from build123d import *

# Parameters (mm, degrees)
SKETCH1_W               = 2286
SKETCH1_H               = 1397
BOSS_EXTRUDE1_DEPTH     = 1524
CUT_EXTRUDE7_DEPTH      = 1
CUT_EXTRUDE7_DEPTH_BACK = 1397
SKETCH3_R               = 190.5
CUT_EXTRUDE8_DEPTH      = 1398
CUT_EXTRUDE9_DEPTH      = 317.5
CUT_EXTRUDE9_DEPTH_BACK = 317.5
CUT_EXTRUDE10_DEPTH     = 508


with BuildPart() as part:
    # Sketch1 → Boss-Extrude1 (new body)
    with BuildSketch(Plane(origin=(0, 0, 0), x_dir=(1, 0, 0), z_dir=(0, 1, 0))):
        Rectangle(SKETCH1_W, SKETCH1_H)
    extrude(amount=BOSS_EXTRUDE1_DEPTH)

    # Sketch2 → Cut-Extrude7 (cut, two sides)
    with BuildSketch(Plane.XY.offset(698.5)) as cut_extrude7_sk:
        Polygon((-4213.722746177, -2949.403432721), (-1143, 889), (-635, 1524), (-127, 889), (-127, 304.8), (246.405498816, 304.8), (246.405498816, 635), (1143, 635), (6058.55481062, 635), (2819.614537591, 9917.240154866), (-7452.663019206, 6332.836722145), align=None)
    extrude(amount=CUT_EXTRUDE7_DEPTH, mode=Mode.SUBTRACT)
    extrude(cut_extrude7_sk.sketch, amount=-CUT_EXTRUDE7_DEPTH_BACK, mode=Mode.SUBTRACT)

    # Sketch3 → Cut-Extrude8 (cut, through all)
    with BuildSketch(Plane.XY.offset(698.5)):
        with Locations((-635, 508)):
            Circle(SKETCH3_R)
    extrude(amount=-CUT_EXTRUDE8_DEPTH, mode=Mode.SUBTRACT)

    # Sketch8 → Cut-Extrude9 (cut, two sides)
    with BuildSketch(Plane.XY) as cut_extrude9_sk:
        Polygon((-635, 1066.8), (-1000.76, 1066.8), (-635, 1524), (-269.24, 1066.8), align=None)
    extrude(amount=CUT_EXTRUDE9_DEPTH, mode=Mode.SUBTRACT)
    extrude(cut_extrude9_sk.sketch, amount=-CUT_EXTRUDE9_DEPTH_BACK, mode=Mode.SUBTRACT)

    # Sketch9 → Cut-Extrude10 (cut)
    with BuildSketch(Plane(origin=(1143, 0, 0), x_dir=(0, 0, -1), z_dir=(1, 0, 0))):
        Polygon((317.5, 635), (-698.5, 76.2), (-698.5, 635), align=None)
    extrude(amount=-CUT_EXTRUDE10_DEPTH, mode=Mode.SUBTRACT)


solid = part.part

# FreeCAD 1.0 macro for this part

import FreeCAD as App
import Part
import Sketcher

V = App.Vector
Q = App.Units.Quantity

doc = App.newDocument("Part")
body = doc.addObject("PartDesign::Body", "Body")

sketch1 = doc.addObject("Sketcher::SketchObject", "Sketch")
body.addObject(sketch1)
sketch1.AttachmentSupport = (doc.XZ_Plane, [""])
sketch1.MapMode = "FlatFace"
sketch1.addGeometry(Part.LineSegment(V(-1143, -698, 0), V(-1143, 698, 0)), False)
sketch1.addGeometry(Part.LineSegment(V(-1143, 698, 0), V(1143, 698, 0)), False)
sketch1.addGeometry(Part.LineSegment(V(1143, 698, 0), V(1143, -698, 0)), False)
sketch1.addGeometry(Part.LineSegment(V(1143, -698, 0), V(-1143, -698, 0)), False)
sketch1.addConstraint(Sketcher.Constraint("Coincident", 0, 2, 1, 1))
sketch1.addConstraint(Sketcher.Constraint("Coincident", 1, 2, 2, 1))
sketch1.addConstraint(Sketcher.Constraint("Coincident", 2, 2, 3, 1))
sketch1.addConstraint(Sketcher.Constraint("Coincident", 3, 2, 0, 1))
sketch1.addConstraint(Sketcher.Constraint("Vertical", 0))
sketch1.addConstraint(Sketcher.Constraint("Horizontal", 1))
sketch1.addConstraint(Sketcher.Constraint("Vertical", 2))
sketch1.addConstraint(Sketcher.Constraint("Horizontal", 3))
sketch1.addConstraint(Sketcher.Constraint("Symmetric", 0, 2, 2, 2, -1, 1))
sketch1.addConstraint(Sketcher.Constraint("DistanceX", 1, 1, 1, 2, Q("90 in")))
sketch1.addConstraint(Sketcher.Constraint("DistanceY", 0, 1, 0, 2, Q("55 in")))
pad1 = doc.addObject("PartDesign::Pad", "Pad")
body.addObject(pad1)
pad1.Profile = sketch1
pad1.Length = Q("60 in")
pad1.Reversed = True

sketch2 = doc.addObject("Sketcher::SketchObject", "Sketch001")
body.addObject(sketch2)
sketch2.AttachmentSupport = (doc.XY_Plane, [""])
sketch2.MapMode = "FlatFace"
sketch2.AttachmentOffset = App.Placement(V(0, 0, 27.5 * 25.4), App.Rotation())
sketch2.addGeometry(Part.LineSegment(V(-4214, -2949, 0), V(-635, 1524, 0)), False)
sketch2.addGeometry(Part.LineSegment(V(-635, 1524, 0), V(-127, 889, 0)), False)
sketch2.addGeometry(Part.LineSegment(V(-127, 889, 0), V(-127, 305, 0)), False)
sketch2.addGeometry(Part.LineSegment(V(-127, 305, 0), V(246, 305, 0)), False)
sketch2.addGeometry(Part.LineSegment(V(246, 305, 0), V(246, 635, 0)), False)
sketch2.addGeometry(Part.LineSegment(V(246, 635, 0), V(6059, 635, 0)), False)
sketch2.addGeometry(Part.LineSegment(V(6059, 635, 0), V(2820, 9917, 0)), False)
sketch2.addGeometry(Part.LineSegment(V(2820, 9917, 0), V(-7453, 6333, 0)), False)
sketch2.addGeometry(Part.LineSegment(V(-7453, 6333, 0), V(-4214, -2949, 0)), False)
sketch2.addConstraint(Sketcher.Constraint("Coincident", 0, 2, 1, 1))
sketch2.addConstraint(Sketcher.Constraint("Coincident", 1, 2, 2, 1))
sketch2.addConstraint(Sketcher.Constraint("Coincident", 2, 2, 3, 1))
sketch2.addConstraint(Sketcher.Constraint("Coincident", 3, 2, 4, 1))
sketch2.addConstraint(Sketcher.Constraint("Coincident", 4, 2, 5, 1))
sketch2.addConstraint(Sketcher.Constraint("Coincident", 5, 2, 6, 1))
sketch2.addConstraint(Sketcher.Constraint("Coincident", 6, 2, 7, 1))
sketch2.addConstraint(Sketcher.Constraint("Coincident", 7, 2, 8, 1))
sketch2.addConstraint(Sketcher.Constraint("Coincident", 8, 2, 0, 1))
sketch2.addConstraint(Sketcher.Constraint("Vertical", 2))
sketch2.addConstraint(Sketcher.Constraint("Horizontal", 3))
sketch2.addConstraint(Sketcher.Constraint("Vertical", 4))
sketch2.addConstraint(Sketcher.Constraint("Horizontal", 5))
sketch2.addConstraint(Sketcher.Constraint("Perpendicular", 6, 7))
sketch2.addConstraint(Sketcher.Constraint("Perpendicular", 7, 8))
sketch2.addConstraint(Sketcher.Constraint("Equal", 6, 8))
sketch2.addConstraint(Sketcher.Constraint("DistanceY", 2, 2, 2, 1, Q("23 in")))
sketch2.addConstraint(Sketcher.Constraint("DistanceY", 4, 1, 4, 2, Q("13 in")))
sketch2.addConstraint(Sketcher.Constraint("DistanceX", 0, 2, -1, 1, Q("25 in")))
sketch2.addConstraint(Sketcher.Constraint("DistanceY", -1, 1, 0, 2, Q("60 in")))
sketch2.addConstraint(Sketcher.Constraint("DistanceX", 1, 2, -1, 1, Q("5 in")))
sketch2.addConstraint(Sketcher.Constraint("DistanceY", -1, 1, 1, 2, Q("35 in")))
sketch2.addConstraint(Sketcher.Constraint("DistanceX", 3, 1, 3, 2, Q("373.405499 mm")))
sketch2.addConstraint(Sketcher.Constraint("DistanceX", 8, 2, 3, 2, Q("175.5956002 in")))
sketch2.addConstraint(Sketcher.Constraint("DistanceX", 5, 1, 5, 2, Q("5812.149312 mm")))
sketch2.addConstraint(Sketcher.Constraint("Distance", 0, Q("5728.751589 mm")))
sketch2.addConstraint(Sketcher.Constraint("Distance", 6, Q("9831.109621 mm")))
pocket1 = doc.addObject("PartDesign::Pocket", "Pocket")
body.addObject(pocket1)
pocket1.Profile = sketch2
pocket1.Type = "ThroughAll"
pocket1.Midplane = True

sketch3 = doc.addObject("Sketcher::SketchObject", "Sketch002")
body.addObject(sketch3)
sketch3.AttachmentSupport = (doc.XY_Plane, [""])
sketch3.MapMode = "FlatFace"
sketch3.AttachmentOffset = App.Placement(V(0, 0, 27.5 * 25.4), App.Rotation())
sketch3.addGeometry(Part.Circle(V(-635, 508, 0), V(0, 0, 1), 190), False)
sketch3.addConstraint(Sketcher.Constraint("Diameter", 0, Q("15 in")))
sketch3.addConstraint(Sketcher.Constraint("DistanceX", 0, 3, -1, 1, Q("25 in")))
sketch3.addConstraint(Sketcher.Constraint("DistanceY", -1, 1, 0, 3, Q("20 in")))
pocket2 = doc.addObject("PartDesign::Pocket", "Pocket001")
body.addObject(pocket2)
pocket2.Profile = sketch3
pocket2.Type = "ThroughAll"

sketch4 = doc.addObject("Sketcher::SketchObject", "Sketch003")
body.addObject(sketch4)
sketch4.AttachmentSupport = (doc.XY_Plane, [""])
sketch4.MapMode = "FlatFace"
sketch4.addGeometry(Part.LineSegment(V(-1001, 1067, 0), V(-269, 1067, 0)), False)
sketch4.addGeometry(Part.LineSegment(V(-269, 1067, 0), V(-635, 1524, 0)), False)
sketch4.addGeometry(Part.LineSegment(V(-635, 1524, 0), V(-1001, 1067, 0)), False)
sketch4.addConstraint(Sketcher.Constraint("Coincident", 0, 2, 1, 1))
sketch4.addConstraint(Sketcher.Constraint("Coincident", 1, 2, 2, 1))
sketch4.addConstraint(Sketcher.Constraint("Coincident", 2, 2, 0, 1))
sketch4.addConstraint(Sketcher.Constraint("Horizontal", 0))
sketch4.addConstraint(Sketcher.Constraint("Equal", 1, 2))
sketch4.addConstraint(Sketcher.Constraint("DistanceX", 0, 1, 0, 2, Q("28.8 in")))
sketch4.addConstraint(Sketcher.Constraint("DistanceY", -1, 1, 0, 2, Q("42 in")))
sketch4.addConstraint(Sketcher.Constraint("DistanceX", 1, 2, -1, 1, Q("25 in")))
sketch4.addConstraint(Sketcher.Constraint("DistanceY", -1, 1, 1, 2, Q("60 in")))
pocket3 = doc.addObject("PartDesign::Pocket", "Pocket002")
body.addObject(pocket3)
pocket3.Profile = sketch4
pocket3.Type = "TwoLengths"
pocket3.Length = Q("12.5 in")
pocket3.Length2 = Q("12.5 in")
pocket3.Reversed = True

sketch5 = doc.addObject("Sketcher::SketchObject", "Sketch004")
body.addObject(sketch5)
sketch5.AttachmentSupport = (doc.YZ_Plane, [""])
sketch5.MapMode = "FlatFace"
sketch5.AttachmentOffset = App.Placement(V(0, 0, 45 * 25.4), App.Rotation())
sketch5.addGeometry(Part.LineSegment(V(76, 698, 0), V(635, -318, 0)), False)
sketch5.addGeometry(Part.LineSegment(V(635, -318, 0), V(635, 698, 0)), False)
sketch5.addGeometry(Part.LineSegment(V(635, 698, 0), V(76, 698, 0)), False)
sketch5.addConstraint(Sketcher.Constraint("Coincident", 0, 2, 1, 1))
sketch5.addConstraint(Sketcher.Constraint("Coincident", 1, 2, 2, 1))
sketch5.addConstraint(Sketcher.Constraint("Coincident", 2, 2, 0, 1))
sketch5.addConstraint(Sketcher.Constraint("Vertical", 1))
sketch5.addConstraint(Sketcher.Constraint("Horizontal", 2))
sketch5.addConstraint(Sketcher.Constraint("DistanceX", 2, 2, 2, 1, Q("22 in")))
sketch5.addConstraint(Sketcher.Constraint("DistanceY", 1, 1, 1, 2, Q("40 in")))
sketch5.addConstraint(Sketcher.Constraint("DistanceX", -1, 1, 0, 2, Q("25 in")))
sketch5.addConstraint(Sketcher.Constraint("DistanceY", 0, 2, -1, 1, Q("12.5 in")))
pocket4 = doc.addObject("PartDesign::Pocket", "Pocket003")
body.addObject(pocket4)
pocket4.Profile = sketch5
pocket4.Length = Q("20 in")

doc.recompute()
